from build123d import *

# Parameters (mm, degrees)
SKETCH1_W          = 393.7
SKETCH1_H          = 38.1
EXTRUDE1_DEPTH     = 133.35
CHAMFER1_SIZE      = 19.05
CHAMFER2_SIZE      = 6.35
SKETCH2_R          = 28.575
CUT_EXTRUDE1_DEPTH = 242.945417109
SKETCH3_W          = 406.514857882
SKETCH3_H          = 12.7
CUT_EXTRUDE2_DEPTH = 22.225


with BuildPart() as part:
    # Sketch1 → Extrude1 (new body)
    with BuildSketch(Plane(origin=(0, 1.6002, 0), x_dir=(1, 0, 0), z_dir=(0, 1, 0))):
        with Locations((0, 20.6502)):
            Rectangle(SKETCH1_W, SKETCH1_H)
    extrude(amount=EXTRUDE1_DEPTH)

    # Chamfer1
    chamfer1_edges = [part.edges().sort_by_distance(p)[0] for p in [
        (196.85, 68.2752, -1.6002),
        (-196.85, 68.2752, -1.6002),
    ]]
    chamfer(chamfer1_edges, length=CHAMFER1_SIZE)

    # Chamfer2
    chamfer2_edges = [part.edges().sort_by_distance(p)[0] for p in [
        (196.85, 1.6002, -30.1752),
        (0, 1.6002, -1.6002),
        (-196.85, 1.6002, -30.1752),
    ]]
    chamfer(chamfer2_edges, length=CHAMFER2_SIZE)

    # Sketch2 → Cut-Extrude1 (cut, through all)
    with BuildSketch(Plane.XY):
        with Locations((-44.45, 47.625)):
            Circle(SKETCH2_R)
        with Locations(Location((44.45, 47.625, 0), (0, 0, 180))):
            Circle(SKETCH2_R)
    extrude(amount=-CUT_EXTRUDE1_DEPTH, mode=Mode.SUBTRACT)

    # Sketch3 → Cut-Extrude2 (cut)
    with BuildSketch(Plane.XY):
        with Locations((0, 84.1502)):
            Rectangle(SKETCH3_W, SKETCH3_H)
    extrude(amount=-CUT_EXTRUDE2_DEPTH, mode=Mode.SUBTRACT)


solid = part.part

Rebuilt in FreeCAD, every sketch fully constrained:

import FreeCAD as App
import Part
import Sketcher
from FreeCAD import Vector
Q = App.Units.Quantity


def edges_at(feature, points):
    """Names of the edges that pass closest to the given points."""
    edges = feature.Shape.Edges
    near = lambda p: min(range(len(edges)), key=lambda i: edges[i].distToShape(Part.Vertex(*p))[0])
    return sorted({f"Edge{near(p) + 1}" for p in points})


def add_polygon(sketch, points):
    """Adds a closed chain of lines whose ends are joined by coincident constraints."""
    first, n = sketch.GeometryCount, len(points)
    for a, b in zip(points, points[1:] + points[:1]):
        sketch.addGeometry(Part.LineSegment(App.Vector(*a, 0), App.Vector(*b, 0)), False)
    for i in range(n):
        sketch.addConstraint(Sketcher.Constraint("Coincident", first + i, 2, first + (i + 1) % n, 1))

doc = App.newDocument("Part")
params = doc.addObject("Spreadsheet::Sheet", "Params")
for row, (alias, value) in enumerate([
    ("sketch1_width", "15.5 in"),
    ("sketch1_height", "1.5 in"),
    ("pad1_length", "5.25 in"),
    ("chamfer_size", "0.75 in"),
    ("chamfer2_size", "0.25 in"),
    ("sketch2_diameter", "2.25 in"),
    ("sketch3_height", "0.5 in"),
    ("pocket2_length", "0.875 in"),
], start=1):
    params.set(f"A{row}", alias)
    params.set(f"B{row}", "=" + value)
    params.setAlias(f"B{row}", alias)

body = doc.addObject("PartDesign::Body", "Body")

sketch1 = doc.addObject("Sketcher::SketchObject", "Sketch")
body.addObject(sketch1)
sketch1.AttachmentSupport = (doc.XZ_Plane, [""])
sketch1.MapMode = "FlatFace"
sketch1.AttachmentOffset = App.Placement(Vector(0, 0, -0.063 * 25.4), App.Rotation())
add_polygon(sketch1, [(-197, -40), (-197, -2), (197, -2), (197, -40)])
sketch1.addConstraint([
    Sketcher.Constraint("Vertical", 0),
    Sketcher.Constraint("Horizontal", 1),
    Sketcher.Constraint("Vertical", 2),
    Sketcher.Constraint("Horizontal", 3),
    Sketcher.Constraint("DistanceX", 1, 1, 1, 2, Q("15.5 in")),
    Sketcher.Constraint("DistanceY", 0, 1, 0, 2, Q("1.5 in")),
    Sketcher.Constraint("DistanceX", 0, 2, -1, 1, Q("7.75 in")),
    Sketcher.Constraint("DistanceY", 0, 2, -1, 1, Q("0.063 in")),
])
sketch1.setExpression("Constraints[8]", "Params.sketch1_width")
sketch1.setExpression("Constraints[9]", "Params.sketch1_height")
pad1 = doc.addObject("PartDesign::Pad", "Pad")
body.addObject(pad1)
pad1.Profile = sketch1
pad1.setExpression("Length", "Params.pad1_length")
pad1.Reversed = True
doc.recompute()

chamfer = doc.addObject("PartDesign::Chamfer", "Chamfer")
body.addObject(chamfer)
chamfer.Base = (pad1, edges_at(pad1, [(196.85, 68.275, -1.6), (-196.85, 68.275, -1.6)]))
chamfer.setExpression("Size", "Params.chamfer_size")
doc.recompute()

chamfer2 = doc.addObject("PartDesign::Chamfer", "Chamfer001")
body.addObject(chamfer2)
chamfer2.Base = (chamfer, edges_at(chamfer, [(196.85, 1.6, -30.175), (0, 1.6, -1.6), (-196.85, 1.6, -30.175)]))
chamfer2.setExpression("Size", "Params.chamfer2_size")

sketch2 = doc.addObject("Sketcher::SketchObject", "Sketch001")
body.addObject(sketch2)
sketch2.AttachmentSupport = (doc.XY_Plane, [""])
sketch2.MapMode = "FlatFace"
sketch2.addGeometry([
    Part.Circle(Vector(-44, 48, 0), Vector(0, 0, 1), 29),
    Part.Circle(Vector(44, 48, 0), Vector(0, 0, 1), 29),
], False)
sketch2.addConstraint([
    Sketcher.Constraint("Equal", 0, 1),
    Sketcher.Constraint("Symmetric", 0, 3, 1, 3, -2),
    Sketcher.Constraint("Diameter", 0, Q("2.25 in")),
    Sketcher.Constraint("DistanceX", 0, 3, 1, 3, Q("3.5 in")),
    Sketcher.Constraint("DistanceY", -1, 1, 0, 3, Q("1.875 in")),
])
sketch2.setExpression("Constraints[2]", "Params.sketch2_diameter")
pocket1 = doc.addObject("PartDesign::Pocket", "Pocket")
body.addObject(pocket1)
pocket1.Profile = sketch2
pocket1.Type = "ThroughAll"

sketch3 = doc.addObject("Sketcher::SketchObject", "Sketch002")
body.addObject(sketch3)
sketch3.AttachmentSupport = (doc.XY_Plane, [""])
sketch3.MapMode = "FlatFace"
add_polygon(sketch3, [(-203, 91), (-203, 78), (203, 78), (203, 91)])
sketch3.addConstraint([
    Sketcher.Constraint("Vertical", 0),
    Sketcher.Constraint("Horizontal", 1),
    Sketcher.Constraint("Vertical", 2),
    Sketcher.Constraint("Horizontal", 3),
    Sketcher.Constraint("DistanceY", 0, 2, 0, 1, Q("0.5 in")),
    Sketcher.Constraint("DistanceY", -1, 1, 0, 2, Q("3.063 in")),
    Sketcher.Constraint("DistanceX", 1, 1, 1, 2, Q("406.514858 mm")),
    Sketcher.Constraint("DistanceX", 0, 2, -1, 1, Q("203.257429 mm")),
])
sketch3.setExpression("Constraints[8]", "Params.sketch3_height")
pocket2 = doc.addObject("PartDesign::Pocket", "Pocket001")
body.addObject(pocket2)
pocket2.Profile = sketch3
pocket2.setExpression("Length", "Params.pocket2_length")

doc.recompute()
